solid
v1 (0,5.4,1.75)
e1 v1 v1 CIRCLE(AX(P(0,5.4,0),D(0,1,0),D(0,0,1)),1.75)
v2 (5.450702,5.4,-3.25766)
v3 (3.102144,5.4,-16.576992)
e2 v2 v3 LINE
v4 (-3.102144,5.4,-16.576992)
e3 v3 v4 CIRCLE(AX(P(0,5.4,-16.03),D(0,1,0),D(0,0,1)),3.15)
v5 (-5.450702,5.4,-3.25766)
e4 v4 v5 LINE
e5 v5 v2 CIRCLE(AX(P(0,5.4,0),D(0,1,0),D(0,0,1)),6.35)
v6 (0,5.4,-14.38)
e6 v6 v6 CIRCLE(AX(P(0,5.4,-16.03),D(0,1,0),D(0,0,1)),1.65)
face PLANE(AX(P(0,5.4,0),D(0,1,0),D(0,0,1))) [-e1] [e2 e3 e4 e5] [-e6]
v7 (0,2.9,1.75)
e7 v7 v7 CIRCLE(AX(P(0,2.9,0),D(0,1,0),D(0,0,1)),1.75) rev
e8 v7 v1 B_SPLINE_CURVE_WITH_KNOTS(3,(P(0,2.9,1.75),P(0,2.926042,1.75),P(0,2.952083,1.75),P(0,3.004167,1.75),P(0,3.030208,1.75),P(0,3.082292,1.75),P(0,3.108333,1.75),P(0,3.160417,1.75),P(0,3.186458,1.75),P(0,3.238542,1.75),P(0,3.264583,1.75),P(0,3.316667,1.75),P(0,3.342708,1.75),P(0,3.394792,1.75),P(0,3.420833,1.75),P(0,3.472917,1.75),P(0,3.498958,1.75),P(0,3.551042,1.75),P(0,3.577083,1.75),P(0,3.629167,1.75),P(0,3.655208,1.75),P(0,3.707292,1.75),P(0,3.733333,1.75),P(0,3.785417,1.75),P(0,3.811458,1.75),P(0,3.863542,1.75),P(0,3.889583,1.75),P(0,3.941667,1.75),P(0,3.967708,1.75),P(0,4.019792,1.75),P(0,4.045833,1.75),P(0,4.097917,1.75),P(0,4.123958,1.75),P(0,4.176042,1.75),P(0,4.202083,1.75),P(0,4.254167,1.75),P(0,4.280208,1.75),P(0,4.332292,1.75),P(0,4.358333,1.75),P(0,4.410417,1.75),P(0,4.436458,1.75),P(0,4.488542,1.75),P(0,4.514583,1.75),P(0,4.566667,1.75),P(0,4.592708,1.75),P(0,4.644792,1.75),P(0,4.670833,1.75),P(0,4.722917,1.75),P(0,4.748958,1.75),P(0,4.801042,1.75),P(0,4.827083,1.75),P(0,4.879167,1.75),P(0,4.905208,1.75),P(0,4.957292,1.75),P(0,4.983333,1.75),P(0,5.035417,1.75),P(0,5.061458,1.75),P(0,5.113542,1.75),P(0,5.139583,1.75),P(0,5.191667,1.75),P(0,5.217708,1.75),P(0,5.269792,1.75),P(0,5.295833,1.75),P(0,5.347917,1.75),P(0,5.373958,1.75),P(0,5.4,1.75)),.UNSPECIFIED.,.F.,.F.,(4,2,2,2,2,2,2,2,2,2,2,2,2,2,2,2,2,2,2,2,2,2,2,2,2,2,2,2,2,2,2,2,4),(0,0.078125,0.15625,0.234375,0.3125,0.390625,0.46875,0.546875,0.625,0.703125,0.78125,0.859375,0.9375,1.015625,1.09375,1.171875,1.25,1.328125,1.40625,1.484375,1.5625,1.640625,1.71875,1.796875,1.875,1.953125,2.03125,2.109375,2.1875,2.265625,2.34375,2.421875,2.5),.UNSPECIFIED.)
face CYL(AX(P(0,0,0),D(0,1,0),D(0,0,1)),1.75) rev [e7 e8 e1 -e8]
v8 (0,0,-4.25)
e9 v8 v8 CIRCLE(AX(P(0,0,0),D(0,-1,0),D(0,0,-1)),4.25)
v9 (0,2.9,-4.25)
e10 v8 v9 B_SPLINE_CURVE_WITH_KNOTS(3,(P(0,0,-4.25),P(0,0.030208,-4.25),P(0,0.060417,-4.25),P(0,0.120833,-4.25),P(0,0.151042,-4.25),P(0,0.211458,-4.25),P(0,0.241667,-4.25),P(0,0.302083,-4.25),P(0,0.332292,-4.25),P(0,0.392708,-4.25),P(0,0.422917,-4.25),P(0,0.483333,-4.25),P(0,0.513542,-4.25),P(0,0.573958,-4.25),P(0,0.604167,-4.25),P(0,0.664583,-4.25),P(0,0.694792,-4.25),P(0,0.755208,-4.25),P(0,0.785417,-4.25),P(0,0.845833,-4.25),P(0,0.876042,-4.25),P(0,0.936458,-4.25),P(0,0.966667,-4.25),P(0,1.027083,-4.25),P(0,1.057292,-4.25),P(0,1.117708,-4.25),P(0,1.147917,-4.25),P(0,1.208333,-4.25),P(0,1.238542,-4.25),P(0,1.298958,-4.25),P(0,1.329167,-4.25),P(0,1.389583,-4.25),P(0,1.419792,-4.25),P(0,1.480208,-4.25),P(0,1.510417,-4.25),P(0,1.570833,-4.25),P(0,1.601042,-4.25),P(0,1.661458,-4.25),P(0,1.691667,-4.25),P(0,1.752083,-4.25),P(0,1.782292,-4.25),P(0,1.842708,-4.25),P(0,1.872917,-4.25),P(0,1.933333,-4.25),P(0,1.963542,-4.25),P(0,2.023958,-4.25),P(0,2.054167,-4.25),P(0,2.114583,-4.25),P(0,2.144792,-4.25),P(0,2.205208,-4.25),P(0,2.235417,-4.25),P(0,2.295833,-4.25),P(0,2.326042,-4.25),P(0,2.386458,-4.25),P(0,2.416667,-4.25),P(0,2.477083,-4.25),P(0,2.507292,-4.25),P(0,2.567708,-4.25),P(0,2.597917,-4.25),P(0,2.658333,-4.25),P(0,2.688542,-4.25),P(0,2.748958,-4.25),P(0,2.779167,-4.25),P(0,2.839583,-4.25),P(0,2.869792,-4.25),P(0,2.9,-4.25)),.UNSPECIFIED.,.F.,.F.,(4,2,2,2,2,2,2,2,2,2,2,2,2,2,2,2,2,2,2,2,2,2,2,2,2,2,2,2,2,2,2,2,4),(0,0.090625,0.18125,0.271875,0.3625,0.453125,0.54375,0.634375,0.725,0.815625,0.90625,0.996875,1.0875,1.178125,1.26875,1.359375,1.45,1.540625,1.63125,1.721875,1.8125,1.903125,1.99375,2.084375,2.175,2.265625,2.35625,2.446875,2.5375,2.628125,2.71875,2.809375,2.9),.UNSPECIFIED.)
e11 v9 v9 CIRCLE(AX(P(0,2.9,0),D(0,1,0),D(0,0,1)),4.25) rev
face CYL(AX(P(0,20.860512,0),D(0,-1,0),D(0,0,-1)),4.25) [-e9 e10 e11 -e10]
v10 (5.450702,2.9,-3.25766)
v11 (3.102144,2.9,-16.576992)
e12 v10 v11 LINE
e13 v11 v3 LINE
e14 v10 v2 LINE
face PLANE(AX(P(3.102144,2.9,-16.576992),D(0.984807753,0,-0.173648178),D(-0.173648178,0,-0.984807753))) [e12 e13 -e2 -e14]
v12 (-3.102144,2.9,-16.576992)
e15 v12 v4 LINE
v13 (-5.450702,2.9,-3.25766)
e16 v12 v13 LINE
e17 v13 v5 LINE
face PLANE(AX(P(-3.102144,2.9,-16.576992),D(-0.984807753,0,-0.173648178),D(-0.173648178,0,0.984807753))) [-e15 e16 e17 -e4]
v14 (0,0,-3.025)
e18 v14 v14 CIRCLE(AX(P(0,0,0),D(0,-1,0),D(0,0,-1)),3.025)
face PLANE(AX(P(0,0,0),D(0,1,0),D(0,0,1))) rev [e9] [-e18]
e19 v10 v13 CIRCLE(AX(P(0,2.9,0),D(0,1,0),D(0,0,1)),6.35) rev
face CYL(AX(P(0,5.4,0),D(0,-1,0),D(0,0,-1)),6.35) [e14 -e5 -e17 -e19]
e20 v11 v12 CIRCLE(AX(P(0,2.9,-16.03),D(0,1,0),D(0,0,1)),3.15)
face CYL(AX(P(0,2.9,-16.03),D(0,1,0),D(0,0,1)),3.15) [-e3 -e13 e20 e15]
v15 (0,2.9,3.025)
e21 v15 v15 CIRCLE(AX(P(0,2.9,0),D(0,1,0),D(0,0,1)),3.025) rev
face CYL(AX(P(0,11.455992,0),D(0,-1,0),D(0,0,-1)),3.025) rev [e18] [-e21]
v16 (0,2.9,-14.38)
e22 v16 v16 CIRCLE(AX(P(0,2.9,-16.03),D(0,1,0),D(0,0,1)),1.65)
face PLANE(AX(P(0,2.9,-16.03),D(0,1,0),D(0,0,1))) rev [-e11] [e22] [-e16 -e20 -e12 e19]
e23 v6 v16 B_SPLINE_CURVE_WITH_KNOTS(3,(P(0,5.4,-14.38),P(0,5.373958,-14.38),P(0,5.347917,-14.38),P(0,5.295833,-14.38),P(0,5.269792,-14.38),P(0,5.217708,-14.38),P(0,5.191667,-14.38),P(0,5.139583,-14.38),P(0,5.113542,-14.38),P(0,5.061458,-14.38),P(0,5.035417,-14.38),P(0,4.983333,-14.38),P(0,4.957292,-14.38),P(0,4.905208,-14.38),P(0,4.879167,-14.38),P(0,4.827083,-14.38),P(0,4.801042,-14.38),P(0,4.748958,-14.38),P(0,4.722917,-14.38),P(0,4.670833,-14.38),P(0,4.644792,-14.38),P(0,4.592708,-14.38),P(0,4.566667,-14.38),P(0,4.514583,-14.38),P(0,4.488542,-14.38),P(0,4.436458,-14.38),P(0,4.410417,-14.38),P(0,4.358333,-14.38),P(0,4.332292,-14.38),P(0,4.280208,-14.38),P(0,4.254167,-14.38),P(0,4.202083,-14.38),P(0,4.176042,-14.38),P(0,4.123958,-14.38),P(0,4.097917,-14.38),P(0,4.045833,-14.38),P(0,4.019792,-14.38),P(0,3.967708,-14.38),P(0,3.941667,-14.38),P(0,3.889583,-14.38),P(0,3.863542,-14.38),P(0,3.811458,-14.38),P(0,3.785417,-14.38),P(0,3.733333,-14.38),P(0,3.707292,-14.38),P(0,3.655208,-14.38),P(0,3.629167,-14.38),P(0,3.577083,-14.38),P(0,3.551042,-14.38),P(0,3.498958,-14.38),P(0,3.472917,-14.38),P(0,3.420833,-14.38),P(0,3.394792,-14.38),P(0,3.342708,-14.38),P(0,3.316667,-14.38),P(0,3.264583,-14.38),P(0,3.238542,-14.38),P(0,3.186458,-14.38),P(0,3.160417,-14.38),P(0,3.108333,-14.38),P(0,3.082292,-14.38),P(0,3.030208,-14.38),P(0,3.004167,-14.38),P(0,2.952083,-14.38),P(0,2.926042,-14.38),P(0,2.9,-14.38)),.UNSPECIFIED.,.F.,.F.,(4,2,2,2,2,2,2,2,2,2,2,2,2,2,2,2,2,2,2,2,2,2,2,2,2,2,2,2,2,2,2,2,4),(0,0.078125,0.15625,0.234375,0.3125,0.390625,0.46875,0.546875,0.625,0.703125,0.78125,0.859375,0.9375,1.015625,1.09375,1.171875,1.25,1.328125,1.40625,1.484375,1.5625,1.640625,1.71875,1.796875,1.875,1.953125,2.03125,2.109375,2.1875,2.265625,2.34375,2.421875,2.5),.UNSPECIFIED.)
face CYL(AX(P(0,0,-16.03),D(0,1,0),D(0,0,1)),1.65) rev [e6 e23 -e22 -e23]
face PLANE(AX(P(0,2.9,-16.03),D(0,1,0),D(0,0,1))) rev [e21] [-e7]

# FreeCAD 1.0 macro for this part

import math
import FreeCAD as App
import Part
import Sketcher
from FreeCAD import Vector
Q = App.Units.Quantity

doc = App.newDocument("Part")
body = doc.addObject("PartDesign::Body", "Body")

# Sketch on XZ plane
sketch1 = body.newObject("Sketcher::SketchObject", "Sketch")
sketch1.AttachmentSupport = (doc.getObject("XZ_Plane"), [""])
sketch1.MapMode = "FlatFace"
sketch1.addGeometry(Part.Circle(Vector(0, 0, 0), Vector(0, 0, 1), 6), False)
sketch1.addConstraint(Sketcher.Constraint("Coincident", 0, 3, -1, 1))
sketch1.addConstraint(Sketcher.Constraint("Diameter", 0, 12.7))
pad1 = body.newObject("PartDesign::Pad", "Pad")
pad1.Profile = sketch1
pad1.Length = 5.4
pad1.Reversed = True

# Sketch on XZ plane
sketch2 = body.newObject("Sketcher::SketchObject", "Sketch001")
sketch2.AttachmentSupport = (doc.getObject("XZ_Plane"), [""])
sketch2.MapMode = "FlatFace"
sketch2.AttachmentOffset = App.Placement(Vector(0, 0, -5.4), App.Rotation())
sketch2.addGeometry(Part.Circle(Vector(0, 0, 0), Vector(0, 0, 1), 1.8), False)
sketch2.addConstraint(Sketcher.Constraint("Coincident", 0, 3, -1, 1))
sketch2.addConstraint(Sketcher.Constraint("Diameter", 0, 3.5))
pocket1 = body.newObject("PartDesign::Pocket", "Pocket")
pocket1.Profile = sketch2
pocket1.Type = "ThroughAll"
pocket1.Reversed = True

# Sketch on XZ plane
sketch3 = body.newObject("Sketcher::SketchObject", "Sketch002")
sketch3.AttachmentSupport = (doc.getObject("XZ_Plane"), [""])
sketch3.MapMode = "FlatFace"
sketch3.AttachmentOffset = App.Placement(Vector(0, 0, -2.9), App.Rotation())
sketch3.addGeometry(Part.LineSegment(Vector(-3.1, -16.6, 0), Vector(-5.5, -3.3, 0)), False)
sketch3.addGeometry(Part.ArcOfCircle(Part.Circle(Vector(0, 0, 0), Vector(0, 0, 1), 6.3), math.radians(-149), math.radians(-31)), False)
sketch3.addGeometry(Part.LineSegment(Vector(5.5, -3.3, 0), Vector(3.1, -16.6, 0)), False)
sketch3.addGeometry(Part.ArcOfCircle(Part.Circle(Vector(0, -16, 0), Vector(0, 0, 1), 3.1), math.radians(-170), math.radians(-10)), False)
sketch3.addConstraint(Sketcher.Constraint("Coincident", 0, 2, 1, 1))
sketch3.addConstraint(Sketcher.Constraint("Coincident", 1, 2, 2, 1))
sketch3.addConstraint(Sketcher.Constraint("Tangent", 2, 2, 3, 2))
sketch3.addConstraint(Sketcher.Constraint("Tangent", 3, 1, 0, 1))
sketch3.addConstraint(Sketcher.Constraint("Coincident", 1, 3, -1, 1))
sketch3.addConstraint(Sketcher.Constraint("Symmetric", 2, 2, 3, 1, -2))
sketch3.addConstraint(Sketcher.Constraint("Angle", 0, Q("100 deg")))
sketch3.addConstraint(Sketcher.Constraint("Radius", 1, 6.35))
sketch3.addConstraint(Sketcher.Constraint("Radius", 3, 3.15))
sketch3.addConstraint(Sketcher.Constraint("DistanceY", 3, 3, -1, 1, 16.03))
pad2 = body.newObject("PartDesign::Pad", "Pad001")
pad2.Profile = sketch3
pad2.Length = 2.5
pad2.Reversed = True

# Sketch on XZ plane
sketch4 = body.newObject("Sketcher::SketchObject", "Sketch003")
sketch4.AttachmentSupport = (doc.getObject("XZ_Plane"), [""])
sketch4.MapMode = "FlatFace"
sketch4.AttachmentOffset = App.Placement(Vector(0, 0, -5.4), App.Rotation())
sketch4.addGeometry(Part.Circle(Vector(0, -16, 0), Vector(0, 0, 1), 1.6), False)
sketch4.addConstraint(Sketcher.Constraint("PointOnObject", 0, 3, -2))
sketch4.addConstraint(Sketcher.Constraint("Diameter", 0, 3.3))
sketch4.addConstraint(Sketcher.Constraint("DistanceY", 0, 3, -1, 1, 16.03))
pocket2 = body.newObject("PartDesign::Pocket", "Pocket001")
pocket2.Profile = sketch4
pocket2.Type = "ThroughAll"
pocket2.Reversed = True

# Sketch on XZ plane
sketch5 = body.newObject("Sketcher::SketchObject", "Sketch004")
sketch5.AttachmentSupport = (doc.getObject("XZ_Plane"), [""])
sketch5.MapMode = "FlatFace"
sketch5.addGeometry(Part.Circle(Vector(0, 0, 0), Vector(0, 0, 1), 6.3), False)
sketch5.addGeometry(Part.Circle(Vector(0, 0, 0), Vector(0, 0, 1), 4.2), False)
sketch5.addConstraint(Sketcher.Constraint("Coincident", 0, 3, -1, 1))
sketch5.addConstraint(Sketcher.Constraint("Coincident", 1, 3, -1, 1))
sketch5.addConstraint(Sketcher.Constraint("Diameter", 0, 12.7))
sketch5.addConstraint(Sketcher.Constraint("Diameter", 1, 8.5))
pocket3 = body.newObject("PartDesign::Pocket", "Pocket002")
pocket3.Profile = sketch5
pocket3.Length = 2.9

# Sketch on XZ plane
sketch6 = body.newObject("Sketcher::SketchObject", "Sketch005")
sketch6.AttachmentSupport = (doc.getObject("XZ_Plane"), [""])
sketch6.MapMode = "FlatFace"
sketch6.addGeometry(Part.Circle(Vector(0, 0, 0), Vector(0, 0, 1), 3), False)
sketch6.addConstraint(Sketcher.Constraint("Coincident", 0, 3, -1, 1))
sketch6.addConstraint(Sketcher.Constraint("Diameter", 0, 6.05))
pocket4 = body.newObject("PartDesign::Pocket", "Pocket003")
pocket4.Profile = sketch6
pocket4.Length = 2.9

doc.recompute()
